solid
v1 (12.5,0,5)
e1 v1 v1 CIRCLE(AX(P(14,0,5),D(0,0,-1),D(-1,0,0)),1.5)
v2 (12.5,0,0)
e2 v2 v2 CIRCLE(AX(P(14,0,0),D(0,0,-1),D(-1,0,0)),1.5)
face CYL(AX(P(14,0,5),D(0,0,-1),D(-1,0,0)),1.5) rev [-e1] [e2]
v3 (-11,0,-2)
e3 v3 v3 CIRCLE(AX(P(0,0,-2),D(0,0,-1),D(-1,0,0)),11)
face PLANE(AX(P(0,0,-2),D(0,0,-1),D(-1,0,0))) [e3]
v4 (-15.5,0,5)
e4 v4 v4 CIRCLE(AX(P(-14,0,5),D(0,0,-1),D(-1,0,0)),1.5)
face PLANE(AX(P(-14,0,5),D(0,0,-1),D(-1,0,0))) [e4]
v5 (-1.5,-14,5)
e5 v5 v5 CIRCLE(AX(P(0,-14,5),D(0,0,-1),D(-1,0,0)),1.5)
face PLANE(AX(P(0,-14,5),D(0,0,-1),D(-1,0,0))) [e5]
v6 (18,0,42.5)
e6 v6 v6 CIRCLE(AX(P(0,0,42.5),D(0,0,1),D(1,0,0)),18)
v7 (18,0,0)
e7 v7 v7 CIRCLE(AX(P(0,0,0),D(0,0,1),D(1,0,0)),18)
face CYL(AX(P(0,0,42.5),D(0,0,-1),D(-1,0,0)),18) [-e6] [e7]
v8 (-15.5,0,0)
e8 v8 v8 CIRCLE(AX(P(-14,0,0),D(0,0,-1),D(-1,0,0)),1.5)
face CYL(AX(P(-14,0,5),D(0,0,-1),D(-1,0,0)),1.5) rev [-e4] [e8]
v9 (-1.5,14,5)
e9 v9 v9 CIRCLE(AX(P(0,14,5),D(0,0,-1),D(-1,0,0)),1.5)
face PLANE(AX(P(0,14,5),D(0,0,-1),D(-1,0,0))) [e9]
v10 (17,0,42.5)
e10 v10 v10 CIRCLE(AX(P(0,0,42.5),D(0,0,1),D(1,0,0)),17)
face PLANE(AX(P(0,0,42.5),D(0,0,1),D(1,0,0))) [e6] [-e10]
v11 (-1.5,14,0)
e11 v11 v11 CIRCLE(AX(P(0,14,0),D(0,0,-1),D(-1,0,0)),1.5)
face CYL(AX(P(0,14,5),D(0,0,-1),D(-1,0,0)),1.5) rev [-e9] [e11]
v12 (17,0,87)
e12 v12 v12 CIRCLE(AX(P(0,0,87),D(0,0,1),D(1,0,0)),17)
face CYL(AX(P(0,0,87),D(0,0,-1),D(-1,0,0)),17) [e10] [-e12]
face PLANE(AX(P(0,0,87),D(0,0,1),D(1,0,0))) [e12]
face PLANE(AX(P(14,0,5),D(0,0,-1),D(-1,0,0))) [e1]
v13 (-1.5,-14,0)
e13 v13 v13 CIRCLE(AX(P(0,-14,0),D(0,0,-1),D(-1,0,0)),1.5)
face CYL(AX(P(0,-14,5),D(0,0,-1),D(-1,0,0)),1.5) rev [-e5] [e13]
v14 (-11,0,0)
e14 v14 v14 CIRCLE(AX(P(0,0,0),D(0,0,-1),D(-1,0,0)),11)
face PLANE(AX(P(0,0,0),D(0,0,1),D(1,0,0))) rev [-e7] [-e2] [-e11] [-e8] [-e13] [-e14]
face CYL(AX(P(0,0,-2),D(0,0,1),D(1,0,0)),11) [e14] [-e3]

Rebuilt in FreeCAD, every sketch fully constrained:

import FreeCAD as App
import Part
import Sketcher
Q = App.Units.Quantity

doc = App.newDocument("Part")
body = doc.addObject("PartDesign::Body", "Body")

# Sketch on XY plane
sketch1 = body.newObject("Sketcher::SketchObject", "Sketch")
sketch1.AttachmentSupport = (doc.getObject("XY_Plane"), [""])
sketch1.MapMode = "FlatFace"
sketch1.addGeometry(Part.Circle(App.Vector(0, 0, 0), App.Vector(0, 0, 1), 18), False)
sketch1.addConstraint(Sketcher.Constraint("Coincident", 0, 3, -1, 1))
sketch1.addConstraint(Sketcher.Constraint("Diameter", 0, Q("36 mm")))
pad1 = body.newObject("PartDesign::Pad", "Pad")
pad1.Profile = sketch1
pad1.Length = 42.5

# Sketch on XY plane
sketch2 = body.newObject("Sketcher::SketchObject", "Sketch001")
sketch2.AttachmentSupport = (doc.getObject("XY_Plane"), [""])
sketch2.MapMode = "FlatFace"
sketch2.AttachmentOffset = App.Placement(App.Vector(0, 0, 42.5), App.Rotation())
sketch2.addGeometry(Part.Circle(App.Vector(0, 0, 0), App.Vector(0, 0, 1), 17), False)
sketch2.addConstraint(Sketcher.Constraint("Coincident", 0, 3, -1, 1))
sketch2.addConstraint(Sketcher.Constraint("Diameter", 0, Q("34 mm")))
pad2 = body.newObject("PartDesign::Pad", "Pad001")
pad2.Profile = sketch2
pad2.Length = 44.5

# Sketch on XY plane
sketch3 = body.newObject("Sketcher::SketchObject", "Sketch002")
sketch3.AttachmentSupport = (doc.getObject("XY_Plane"), [""])
sketch3.MapMode = "FlatFace"
sketch3.addGeometry(Part.Circle(App.Vector(0, 0, 0), App.Vector(0, 0, 1), 11), False)
sketch3.addConstraint(Sketcher.Constraint("Coincident", 0, 3, -1, 1))
sketch3.addConstraint(Sketcher.Constraint("Diameter", 0, Q("22 mm")))
pad3 = body.newObject("PartDesign::Pad", "Pad002")
pad3.Profile = sketch3
pad3.Length = 2
pad3.Reversed = True

# Sketch on XY plane
sketch4 = body.newObject("Sketcher::SketchObject", "Sketch003")
sketch4.AttachmentSupport = (doc.getObject("XY_Plane"), [""])
sketch4.MapMode = "FlatFace"
sketch4.addGeometry(Part.Circle(App.Vector(0, 14, 0), App.Vector(0, 0, 1), 1.5), False)
sketch4.addGeometry(Part.Circle(App.Vector(-14, 0, 0), App.Vector(0, 0, 1), 1.5), False)
sketch4.addGeometry(Part.Circle(App.Vector(0, -14, 0), App.Vector(0, 0, 1), 1.5), False)
sketch4.addGeometry(Part.Circle(App.Vector(14, 0, 0), App.Vector(0, 0, 1), 1.5), False)
sketch4.addConstraint(Sketcher.Constraint("Equal", 0, 1))
sketch4.addConstraint(Sketcher.Constraint("Equal", 1, 2))
sketch4.addConstraint(Sketcher.Constraint("Equal", 2, 3))
sketch4.addConstraint(Sketcher.Constraint("Symmetric", 0, 3, 2, 3, -1, 1))
sketch4.addConstraint(Sketcher.Constraint("Symmetric", 1, 3, 3, 3, -1, 1))
sketch4.addConstraint(Sketcher.Constraint("PointOnObject", 0, 3, -2))
sketch4.addConstraint(Sketcher.Constraint("PointOnObject", 1, 3, -1))
sketch4.addConstraint(Sketcher.Constraint("Diameter", 0, Q("3 mm")))
sketch4.addConstraint(Sketcher.Constraint("DistanceY", -1, 1, 0, 3, Q("14 mm")))
sketch4.addConstraint(Sketcher.Constraint("DistanceX", 1, 3, -1, 1, Q("14 mm")))
pocket1 = body.newObject("PartDesign::Pocket", "Pocket")
pocket1.Profile = sketch4
pocket1.Length = 5
pocket1.Reversed = True

doc.recompute()
